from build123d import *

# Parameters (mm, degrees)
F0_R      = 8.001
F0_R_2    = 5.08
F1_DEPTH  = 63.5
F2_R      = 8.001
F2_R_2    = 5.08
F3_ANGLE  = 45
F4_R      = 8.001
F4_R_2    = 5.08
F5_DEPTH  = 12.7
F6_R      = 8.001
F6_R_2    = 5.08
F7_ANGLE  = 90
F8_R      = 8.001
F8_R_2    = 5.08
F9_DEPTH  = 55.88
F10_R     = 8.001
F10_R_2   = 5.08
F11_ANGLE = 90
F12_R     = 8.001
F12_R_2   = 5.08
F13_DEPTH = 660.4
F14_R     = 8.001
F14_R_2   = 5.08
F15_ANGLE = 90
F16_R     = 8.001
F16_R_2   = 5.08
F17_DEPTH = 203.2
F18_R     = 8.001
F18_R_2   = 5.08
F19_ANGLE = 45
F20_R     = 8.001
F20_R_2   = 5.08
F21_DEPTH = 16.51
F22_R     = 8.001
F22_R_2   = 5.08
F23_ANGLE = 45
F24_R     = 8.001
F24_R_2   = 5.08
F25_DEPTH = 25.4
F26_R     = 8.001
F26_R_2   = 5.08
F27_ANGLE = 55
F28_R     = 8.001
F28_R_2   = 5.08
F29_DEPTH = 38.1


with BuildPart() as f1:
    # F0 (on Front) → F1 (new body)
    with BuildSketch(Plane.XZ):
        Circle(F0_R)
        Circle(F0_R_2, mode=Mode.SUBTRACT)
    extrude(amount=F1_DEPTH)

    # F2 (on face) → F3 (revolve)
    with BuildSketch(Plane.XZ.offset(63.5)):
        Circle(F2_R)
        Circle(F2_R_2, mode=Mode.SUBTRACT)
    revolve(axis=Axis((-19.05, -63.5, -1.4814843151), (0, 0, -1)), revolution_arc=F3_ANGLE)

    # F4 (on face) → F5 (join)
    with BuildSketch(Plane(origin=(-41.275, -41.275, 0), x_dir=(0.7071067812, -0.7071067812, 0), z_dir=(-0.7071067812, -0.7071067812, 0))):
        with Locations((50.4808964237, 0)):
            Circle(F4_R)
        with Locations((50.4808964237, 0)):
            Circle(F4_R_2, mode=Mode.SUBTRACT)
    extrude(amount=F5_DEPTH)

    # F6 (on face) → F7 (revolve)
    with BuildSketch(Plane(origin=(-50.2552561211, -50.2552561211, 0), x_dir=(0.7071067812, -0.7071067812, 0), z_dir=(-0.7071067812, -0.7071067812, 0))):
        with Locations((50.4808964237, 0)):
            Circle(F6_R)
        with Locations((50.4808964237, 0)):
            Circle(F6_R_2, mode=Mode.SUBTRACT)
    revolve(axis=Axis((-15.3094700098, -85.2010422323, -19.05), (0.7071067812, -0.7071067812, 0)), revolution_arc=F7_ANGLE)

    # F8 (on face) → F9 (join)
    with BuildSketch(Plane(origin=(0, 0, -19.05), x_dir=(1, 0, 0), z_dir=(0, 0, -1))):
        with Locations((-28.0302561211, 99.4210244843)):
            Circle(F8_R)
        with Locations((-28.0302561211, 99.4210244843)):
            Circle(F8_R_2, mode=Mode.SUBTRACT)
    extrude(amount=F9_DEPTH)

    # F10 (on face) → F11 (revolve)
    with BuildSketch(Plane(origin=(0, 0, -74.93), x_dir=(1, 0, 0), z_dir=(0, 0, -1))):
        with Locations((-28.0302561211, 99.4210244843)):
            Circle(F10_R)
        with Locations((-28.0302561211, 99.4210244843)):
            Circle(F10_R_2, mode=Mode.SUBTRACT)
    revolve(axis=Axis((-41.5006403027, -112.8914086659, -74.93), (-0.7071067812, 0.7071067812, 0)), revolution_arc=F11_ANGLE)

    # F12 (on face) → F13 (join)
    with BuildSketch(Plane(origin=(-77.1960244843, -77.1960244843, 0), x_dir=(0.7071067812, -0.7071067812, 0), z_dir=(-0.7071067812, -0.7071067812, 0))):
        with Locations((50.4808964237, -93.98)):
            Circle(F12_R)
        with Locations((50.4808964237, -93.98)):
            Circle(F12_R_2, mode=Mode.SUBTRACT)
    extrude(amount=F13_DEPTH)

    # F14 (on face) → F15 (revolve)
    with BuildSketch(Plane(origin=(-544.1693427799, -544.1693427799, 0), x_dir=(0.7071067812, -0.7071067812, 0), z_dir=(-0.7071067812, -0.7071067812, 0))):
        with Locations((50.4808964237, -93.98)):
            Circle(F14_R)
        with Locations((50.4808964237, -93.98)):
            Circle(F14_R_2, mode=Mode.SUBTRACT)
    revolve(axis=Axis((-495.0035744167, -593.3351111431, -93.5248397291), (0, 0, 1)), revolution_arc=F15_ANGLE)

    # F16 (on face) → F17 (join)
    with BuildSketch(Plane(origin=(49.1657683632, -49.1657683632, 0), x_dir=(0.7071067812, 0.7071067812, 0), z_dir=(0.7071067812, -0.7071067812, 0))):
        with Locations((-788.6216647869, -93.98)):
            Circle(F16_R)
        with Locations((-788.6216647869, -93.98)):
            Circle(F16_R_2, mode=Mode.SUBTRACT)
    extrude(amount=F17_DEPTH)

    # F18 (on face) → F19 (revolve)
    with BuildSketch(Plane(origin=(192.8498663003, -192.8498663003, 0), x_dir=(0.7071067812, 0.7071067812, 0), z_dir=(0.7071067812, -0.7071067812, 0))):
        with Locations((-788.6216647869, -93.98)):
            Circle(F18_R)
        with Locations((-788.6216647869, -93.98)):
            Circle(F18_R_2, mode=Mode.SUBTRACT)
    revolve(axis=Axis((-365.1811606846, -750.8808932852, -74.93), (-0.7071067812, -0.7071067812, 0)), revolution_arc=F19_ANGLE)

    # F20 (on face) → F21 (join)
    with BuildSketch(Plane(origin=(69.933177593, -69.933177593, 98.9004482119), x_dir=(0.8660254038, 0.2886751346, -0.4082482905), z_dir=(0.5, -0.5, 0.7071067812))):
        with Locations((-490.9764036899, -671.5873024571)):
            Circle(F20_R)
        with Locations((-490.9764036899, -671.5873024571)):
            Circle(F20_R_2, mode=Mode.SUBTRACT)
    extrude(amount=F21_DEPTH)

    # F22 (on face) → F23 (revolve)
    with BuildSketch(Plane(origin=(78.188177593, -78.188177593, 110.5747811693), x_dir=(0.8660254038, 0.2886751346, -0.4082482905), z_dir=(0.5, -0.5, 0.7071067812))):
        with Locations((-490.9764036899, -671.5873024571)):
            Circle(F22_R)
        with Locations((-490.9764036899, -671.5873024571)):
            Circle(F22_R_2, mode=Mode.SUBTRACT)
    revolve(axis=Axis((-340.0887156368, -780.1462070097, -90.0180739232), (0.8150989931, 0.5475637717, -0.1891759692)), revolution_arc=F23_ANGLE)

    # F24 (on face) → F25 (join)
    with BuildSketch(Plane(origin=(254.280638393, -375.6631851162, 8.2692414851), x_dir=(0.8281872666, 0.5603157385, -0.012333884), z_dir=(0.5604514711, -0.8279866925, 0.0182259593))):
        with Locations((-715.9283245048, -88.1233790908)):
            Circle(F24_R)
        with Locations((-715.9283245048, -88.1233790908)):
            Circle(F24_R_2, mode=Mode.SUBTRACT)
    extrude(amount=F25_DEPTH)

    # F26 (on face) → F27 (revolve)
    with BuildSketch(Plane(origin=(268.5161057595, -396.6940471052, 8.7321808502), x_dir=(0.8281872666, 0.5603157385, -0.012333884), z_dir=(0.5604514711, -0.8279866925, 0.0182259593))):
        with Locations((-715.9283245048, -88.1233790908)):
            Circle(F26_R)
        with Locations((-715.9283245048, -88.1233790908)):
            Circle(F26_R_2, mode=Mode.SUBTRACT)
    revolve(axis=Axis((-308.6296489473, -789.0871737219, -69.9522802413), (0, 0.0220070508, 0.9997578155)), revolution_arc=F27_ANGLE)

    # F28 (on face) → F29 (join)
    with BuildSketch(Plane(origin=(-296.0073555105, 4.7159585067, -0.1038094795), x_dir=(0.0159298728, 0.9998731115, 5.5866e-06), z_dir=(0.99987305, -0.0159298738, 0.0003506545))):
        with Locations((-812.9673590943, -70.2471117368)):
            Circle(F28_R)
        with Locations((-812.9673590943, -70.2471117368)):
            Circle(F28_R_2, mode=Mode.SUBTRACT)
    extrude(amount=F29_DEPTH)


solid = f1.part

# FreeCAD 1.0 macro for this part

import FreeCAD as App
import Part
import Sketcher
Q = App.Units.Quantity

doc = App.newDocument("Part")
body = doc.addObject("PartDesign::Body", "Body")

sketch1 = body.newObject("Sketcher::SketchObject", "Sketch")
sketch1.AttachmentSupport = (doc.getObject("XZ_Plane"), [""])
sketch1.MapMode = "FlatFace"
sketch1.addGeometry([
    Part.Circle(App.Vector(0, 0, 0), App.Vector(0, 0, 1), 8),
    Part.Circle(App.Vector(0, 0, 0), App.Vector(0, 0, 1), 5),
], False)
sketch1.addConstraint([
    Sketcher.Constraint("Coincident", 0, 3, -1, 1),
    Sketcher.Constraint("Coincident", 1, 3, -1, 1),
    Sketcher.Constraint("Diameter", 1, Q("0.4 in")),
    Sketcher.Constraint("Diameter", 0, Q("0.63 in")),
])
pad1 = body.newObject("PartDesign::Pad", "Pad")
pad1.Profile = sketch1
pad1.Length = Q("2.5 in")

sketch2 = body.newObject("Sketcher::SketchObject", "Sketch001")
sketch2.AttachmentSupport = (doc.getObject("XZ_Plane"), [""])
sketch2.MapMode = "FlatFace"
sketch2.AttachmentOffset = App.Placement(App.Vector(0, 0, 2.5 * 25.4), App.Rotation())
sketch2.addGeometry([
    Part.Circle(App.Vector(0, 0, 0), App.Vector(0, 0, 1), 8),
    Part.Circle(App.Vector(0, 0, 0), App.Vector(0, 0, 1), 5),
], False)
sketch2.addGeometry(Part.LineSegment(App.Vector(-19, 0, 0), App.Vector(-19, -10, 0)), True)
sketch2.addConstraint([
    Sketcher.Constraint("Vertical", 2),
    Sketcher.Constraint("Coincident", 0, 3, -1, 1),
    Sketcher.Constraint("Coincident", 1, 3, -1, 1),
    Sketcher.Constraint("PointOnObject", 2, 1, -1),
    Sketcher.Constraint("Diameter", 1, Q("0.4 in")),
    Sketcher.Constraint("Diameter", 0, Q("0.63 in")),
    Sketcher.Constraint("DistanceX", 2, 1, -1, 1, Q("0.75 in")),
    Sketcher.Constraint("DistanceY", 2, 2, 2, 1, 10.0),
])
revolution = body.newObject("PartDesign::Revolution", "Revolution")
revolution.Profile = sketch2
revolution.ReferenceAxis = (sketch2, ["Axis0"])
revolution.Angle = 45

sketch3 = body.newObject("Sketcher::SketchObject", "Sketch002")
sketch3.Placement = App.Placement(App.Vector(-41.275, -41.275, 0), App.Rotation(App.Vector(0.707106781, -0.707106781, 0), App.Vector(0, 0, 0.999999999), App.Vector(-0.707106781, -0.707106781, 0), "ZXY"))
sketch3.addGeometry([
    Part.Circle(App.Vector(50, 0, 0), App.Vector(0, 0, 1), 8),
    Part.Circle(App.Vector(50, 0, 0), App.Vector(0, 0, 1), 5),
], False)
sketch3.addConstraint([
    Sketcher.Constraint("Coincident", 1, 3, 0, 3),
    Sketcher.Constraint("PointOnObject", 0, 3, -1),
    Sketcher.Constraint("Diameter", 1, Q("0.4 in")),
    Sketcher.Constraint("Diameter", 0, Q("0.63 in")),
    Sketcher.Constraint("DistanceX", -1, 1, 0, 3, 50.480896),
])
pad2 = body.newObject("PartDesign::Pad", "Pad001")
pad2.Profile = sketch3
pad2.Length = Q("0.5 in")

sketch4 = body.newObject("Sketcher::SketchObject", "Sketch003")
sketch4.Placement = App.Placement(App.Vector(-50.255256, -50.255256, 0), App.Rotation(App.Vector(0.707106781, -0.707106781, 0), App.Vector(0, 0, 0.999999999), App.Vector(-0.707106781, -0.707106781, 0), "ZXY"))
sketch4.addGeometry([
    Part.Circle(App.Vector(50, 0, 0), App.Vector(0, 0, 1), 8),
    Part.Circle(App.Vector(50, 0, 0), App.Vector(0, 0, 1), 5),
], False)
sketch4.addGeometry(Part.LineSegment(App.Vector(50, -19, 0), App.Vector(60, -19, 0)), True)
sketch4.addConstraint([
    Sketcher.Constraint("Horizontal", 2),
    Sketcher.Constraint("Coincident", 1, 3, 0, 3),
    Sketcher.Constraint("PointOnObject", 0, 3, -1),
    Sketcher.Constraint("Vertical", 1, 3, 2, 1),
    Sketcher.Constraint("Diameter", 1, Q("0.4 in")),
    Sketcher.Constraint("Diameter", 0, Q("0.63 in")),
    Sketcher.Constraint("DistanceY", 2, 1, -1, 1, Q("0.75 in")),
    Sketcher.Constraint("DistanceX", 2, 1, 2, 2, 10.0),
    Sketcher.Constraint("DistanceX", -1, 1, 0, 3, 50.480896),
])
revolution2 = body.newObject("PartDesign::Revolution", "Revolution001")
revolution2.Profile = sketch4
revolution2.ReferenceAxis = (sketch4, ["Axis0"])
revolution2.Angle = 90

sketch5 = body.newObject("Sketcher::SketchObject", "Sketch004")
sketch5.AttachmentSupport = (doc.getObject("XY_Plane"), [""])
sketch5.MapMode = "FlatFace"
sketch5.AttachmentOffset = App.Placement(App.Vector(0, 0, -0.75 * 25.4), App.Rotation())
sketch5.addGeometry([
    Part.Circle(App.Vector(-28, -99, 0), App.Vector(0, 0, 1), 8),
    Part.Circle(App.Vector(-28, -99, 0), App.Vector(0, 0, 1), 5),
], False)
sketch5.addConstraint([
    Sketcher.Constraint("Coincident", 1, 3, 0, 3),
    Sketcher.Constraint("Diameter", 1, Q("0.4 in")),
    Sketcher.Constraint("Diameter", 0, Q("0.63 in")),
    Sketcher.Constraint("DistanceX", 0, 3, -1, 1, 28.030256),
    Sketcher.Constraint("DistanceY", 0, 3, -1, 1, 99.421024),
])
pad3 = body.newObject("PartDesign::Pad", "Pad002")
pad3.Profile = sketch5
pad3.Length = Q("2.2 in")
pad3.Reversed = True

sketch6 = body.newObject("Sketcher::SketchObject", "Sketch005")
sketch6.AttachmentSupport = (doc.getObject("XY_Plane"), [""])
sketch6.MapMode = "FlatFace"
sketch6.AttachmentOffset = App.Placement(App.Vector(0, 0, -2.95 * 25.4), App.Rotation())
sketch6.addGeometry([
    Part.Circle(App.Vector(-28, -99, 0), App.Vector(0, 0, 1), 8),
    Part.Circle(App.Vector(-28, -99, 0), App.Vector(0, 0, 1), 5),
], False)
sketch6.addGeometry(Part.LineSegment(App.Vector(-42, -113, 0), App.Vector(-49, -106, 0)), True)
sketch6.addConstraint([
    Sketcher.Constraint("Coincident", 1, 3, 0, 3),
    Sketcher.Constraint("Diameter", 1, Q("0.4 in")),
    Sketcher.Constraint("Diameter", 0, Q("0.63 in")),
    Sketcher.Constraint("Angle", 2, Q("135 deg")),
    Sketcher.Constraint("Distance", 2, 10.0),
    Sketcher.Constraint("DistanceX", 2, 1, -1, 1, 41.50064),
    Sketcher.Constraint("DistanceY", 2, 1, -1, 1, 112.891409),
    Sketcher.Constraint("DistanceX", 2, 2, 0, 3, 20.541452),
    Sketcher.Constraint("DistanceY", 0, 3, -1, 1, 99.421024),
])
revolution3 = body.newObject("PartDesign::Revolution", "Revolution002")
revolution3.Profile = sketch6
revolution3.ReferenceAxis = (sketch6, ["Axis0"])
revolution3.Angle = 90

sketch7 = body.newObject("Sketcher::SketchObject", "Sketch006")
sketch7.Placement = App.Placement(App.Vector(-77.196024, -77.196024, 0), App.Rotation(App.Vector(0.707106781, -0.707106781, 0), App.Vector(0, 0, 0.999999999), App.Vector(-0.707106781, -0.707106781, 0), "ZXY"))
sketch7.addGeometry([
    Part.Circle(App.Vector(50, -94, 0), App.Vector(0, 0, 1), 8),
    Part.Circle(App.Vector(50, -94, 0), App.Vector(0, 0, 1), 5),
], False)
sketch7.addConstraint([
    Sketcher.Constraint("Coincident", 1, 3, 0, 3),
    Sketcher.Constraint("Diameter", 1, Q("0.4 in")),
    Sketcher.Constraint("Diameter", 0, Q("0.63 in")),
    Sketcher.Constraint("DistanceY", 0, 3, -1, 1, Q("3.7 in")),
    Sketcher.Constraint("DistanceX", -1, 1, 0, 3, 50.480896),
])
pad4 = body.newObject("PartDesign::Pad", "Pad003")
pad4.Profile = sketch7
pad4.Length = Q("26 in")

sketch8 = body.newObject("Sketcher::SketchObject", "Sketch007")
sketch8.Placement = App.Placement(App.Vector(-544.169343, -544.169343, 0), App.Rotation(App.Vector(0.707106781, -0.707106781, 0), App.Vector(0, 0, 0.999999999), App.Vector(-0.707106781, -0.707106781, 0), "ZXY"))
sketch8.addGeometry([
    Part.Circle(App.Vector(50, -94, 0), App.Vector(0, 0, 1), 8),
    Part.Circle(App.Vector(50, -94, 0), App.Vector(0, 0, 1), 5),
], False)
sketch8.addGeometry(Part.LineSegment(App.Vector(70, -94, 0), App.Vector(70, -84, 0)), True)
sketch8.addConstraint([
    Sketcher.Constraint("Vertical", 2),
    Sketcher.Constraint("Coincident", 1, 3, 0, 3),
    Sketcher.Constraint("Horizontal", 1, 3, 2, 1),
    Sketcher.Constraint("Diameter", 1, Q("0.4 in")),
    Sketcher.Constraint("Diameter", 0, Q("0.63 in")),
    Sketcher.Constraint("DistanceY", 0, 3, -1, 1, Q("3.7 in")),
    Sketcher.Constraint("DistanceX", 0, 3, 2, 1, Q("0.75 in")),
    Sketcher.Constraint("DistanceY", 2, 1, 2, 2, 10.0),
    Sketcher.Constraint("DistanceX", -1, 1, 0, 3, 50.480896),
])
revolution4 = body.newObject("PartDesign::Revolution", "Revolution003")
revolution4.Profile = sketch8
revolution4.ReferenceAxis = (sketch8, ["Axis0"])
revolution4.Angle = 90

sketch9 = body.newObject("Sketcher::SketchObject", "Sketch008")
sketch9.Placement = App.Placement(App.Vector(49.165768, -49.165768, 0), App.Rotation(App.Vector(0.707106781, 0.707106781, 0), App.Vector(0, 0, 0.999999999), App.Vector(0.707106781, -0.707106781, 0), "ZXY"))
sketch9.addGeometry([
    Part.Circle(App.Vector(-789, -94, 0), App.Vector(0, 0, 1), 8),
    Part.Circle(App.Vector(-789, -94, 0), App.Vector(0, 0, 1), 5),
], False)
sketch9.addConstraint([
    Sketcher.Constraint("Coincident", 1, 3, 0, 3),
    Sketcher.Constraint("Diameter", 1, Q("0.4 in")),
    Sketcher.Constraint("Diameter", 0, Q("0.63 in")),
    Sketcher.Constraint("DistanceY", 0, 3, -1, 1, Q("3.7 in")),
    Sketcher.Constraint("DistanceX", 0, 3, -1, 1, 788.621664),
])
pad5 = body.newObject("PartDesign::Pad", "Pad004")
pad5.Profile = sketch9
pad5.Length = Q("8 in")

sketch10 = body.newObject("Sketcher::SketchObject", "Sketch009")
sketch10.Placement = App.Placement(App.Vector(192.849866, -192.849866, 0), App.Rotation(App.Vector(0.707106781, 0.707106781, 0), App.Vector(0, 0, 0.999999999), App.Vector(0.707106781, -0.707106781, 0), "ZXY"))
sketch10.addGeometry([
    Part.Circle(App.Vector(-789, -94, 0), App.Vector(0, 0, 1), 8),
    Part.Circle(App.Vector(-789, -94, 0), App.Vector(0, 0, 1), 5),
], False)
sketch10.addGeometry(Part.LineSegment(App.Vector(-789, -75, 0), App.Vector(-799, -75, 0)), True)
sketch10.addConstraint([
    Sketcher.Constraint("Horizontal", 2),
    Sketcher.Constraint("Coincident", 1, 3, 0, 3),
    Sketcher.Constraint("Vertical", 1, 3, 2, 1),
    Sketcher.Constraint("Diameter", 1, Q("0.4 in")),
    Sketcher.Constraint("Diameter", 0, Q("0.63 in")),
    Sketcher.Constraint("DistanceY", 0, 3, -1, 1, Q("3.7 in")),
    Sketcher.Constraint("DistanceY", 2, 1, -1, 1, Q("2.95 in")),
    Sketcher.Constraint("DistanceX", 2, 2, 2, 1, 10.0),
    Sketcher.Constraint("DistanceX", 0, 3, -1, 1, 788.621664),
])
revolution5 = body.newObject("PartDesign::Revolution", "Revolution004")
revolution5.Profile = sketch10
revolution5.ReferenceAxis = (sketch10, ["Axis0"])
revolution5.Angle = 45

sketch11 = body.newObject("Sketcher::SketchObject", "Sketch010")
sketch11.Placement = App.Placement(App.Vector(69.933178, -69.933178, 98.900448), App.Rotation(App.Vector(0.866025404, 0.288675135, -0.40824829), App.Vector(0, 0.816496581, 0.57735027), App.Vector(0.5, -0.5, 0.707106781), "ZXY"))
sketch11.addGeometry([
    Part.Circle(App.Vector(-491, -672, 0), App.Vector(0, 0, 1), 8),
    Part.Circle(App.Vector(-491, -672, 0), App.Vector(0, 0, 1), 5),
], False)
sketch11.addConstraint([
    Sketcher.Constraint("Coincident", 1, 3, 0, 3),
    Sketcher.Constraint("Diameter", 1, Q("0.4 in")),
    Sketcher.Constraint("Diameter", 0, Q("0.63 in")),
    Sketcher.Constraint("DistanceX", 0, 3, -1, 1, 490.976404),
    Sketcher.Constraint("DistanceY", 0, 3, -1, 1, 671.587302),
])
pad6 = body.newObject("PartDesign::Pad", "Pad005")
pad6.Profile = sketch11
pad6.Length = Q("0.65 in")

sketch12 = body.newObject("Sketcher::SketchObject", "Sketch011")
sketch12.Placement = App.Placement(App.Vector(78.188178, -78.188178, 110.574781), App.Rotation(App.Vector(0.866025404, 0.288675135, -0.40824829), App.Vector(0, 0.816496581, 0.57735027), App.Vector(0.5, -0.5, 0.707106781), "ZXY"))
sketch12.addGeometry([
    Part.Circle(App.Vector(-491, -672, 0), App.Vector(0, 0, 1), 8),
    Part.Circle(App.Vector(-491, -672, 0), App.Vector(0, 0, 1), 5),
], False)
sketch12.addGeometry(Part.LineSegment(App.Vector(-485, -690, 0), App.Vector(-475, -686, 0)), True)
sketch12.addConstraint([
    Sketcher.Constraint("Coincident", 1, 3, 0, 3),
    Sketcher.Constraint("Diameter", 1, Q("0.4 in")),
    Sketcher.Constraint("Diameter", 0, Q("0.63 in")),
    Sketcher.Constraint("Distance", 2, 10.0),
    Sketcher.Constraint("DistanceX", 2, 1, -1, 1, 484.540111),
    Sketcher.Constraint("DistanceY", 2, 1, -1, 1, 689.517072),
    Sketcher.Constraint("DistanceX", 2, 2, -1, 1, 475.128158),
    Sketcher.Constraint("DistanceY", 2, 1, 0, 3, 17.929769),
    Sketcher.Constraint("DistanceX", 0, 3, -1, 1, 490.976404),
])
revolution6 = body.newObject("PartDesign::Revolution", "Revolution005")
revolution6.Profile = sketch12
revolution6.ReferenceAxis = (sketch12, ["Axis0"])
revolution6.Angle = 45

sketch13 = body.newObject("Sketcher::SketchObject", "Sketch012")
sketch13.Placement = App.Placement(App.Vector(254.280638, -375.663185, 8.269241), App.Rotation(App.Vector(0.828187267, 0.560315738, -0.012333884), App.Vector(0, 0.022007051, 0.999757815), App.Vector(0.560451471, -0.827986692, 0.018225959), "ZXY"))
sketch13.addGeometry([
    Part.Circle(App.Vector(-716, -88, 0), App.Vector(0, 0, 1), 8),
    Part.Circle(App.Vector(-716, -88, 0), App.Vector(0, 0, 1), 5),
], False)
sketch13.addConstraint([
    Sketcher.Constraint("Coincident", 1, 3, 0, 3),
    Sketcher.Constraint("Diameter", 1, Q("0.4 in")),
    Sketcher.Constraint("Diameter", 0, Q("0.63 in")),
    Sketcher.Constraint("DistanceY", 0, 3, -1, 1, 88.123379),
    Sketcher.Constraint("DistanceX", 0, 3, -1, 1, 715.928325),
])
pad7 = body.newObject("PartDesign::Pad", "Pad006")
pad7.Profile = sketch13
pad7.Length = Q("1 in")

sketch14 = body.newObject("Sketcher::SketchObject", "Sketch013")
sketch14.Placement = App.Placement(App.Vector(268.516106, -396.694047, 8.732181), App.Rotation(App.Vector(0.828187267, 0.560315738, -0.012333884), App.Vector(0, 0.022007051, 0.999757815), App.Vector(0.560451471, -0.827986692, 0.018225959), "ZXY"))
sketch14.addGeometry([
    Part.Circle(App.Vector(-716, -88, 0), App.Vector(0, 0, 1), 8),
    Part.Circle(App.Vector(-716, -88, 0), App.Vector(0, 0, 1), 5),
], False)
sketch14.addGeometry(Part.LineSegment(App.Vector(-697, -88, 0), App.Vector(-697, -78, 0)), True)
sketch14.addConstraint([
    Sketcher.Constraint("Vertical", 2),
    Sketcher.Constraint("Coincident", 1, 3, 0, 3),
    Sketcher.Constraint("Horizontal", 1, 3, 2, 1),
    Sketcher.Constraint("Diameter", 1, Q("0.4 in")),
    Sketcher.Constraint("Diameter", 0, Q("0.63 in")),
    Sketcher.Constraint("DistanceX", 0, 3, 2, 1, Q("0.75 in")),
    Sketcher.Constraint("DistanceY", 2, 1, 2, 2, 10.0),
    Sketcher.Constraint("DistanceY", 0, 3, -1, 1, 88.123379),
    Sketcher.Constraint("DistanceX", 0, 3, -1, 1, 715.928325),
])
revolution7 = body.newObject("PartDesign::Revolution", "Revolution006")
revolution7.Profile = sketch14
revolution7.ReferenceAxis = (sketch14, ["Axis0"])
revolution7.Angle = 55

sketch15 = body.newObject("Sketcher::SketchObject", "Sketch014")
sketch15.Placement = App.Placement(App.Vector(-296.007356, 4.715959, -0.103809), App.Rotation(App.Vector(0.015929873, 0.999873112, 0.000005587), App.Vector(-0.0003507, 0, 0.999999939), App.Vector(0.99987305, -0.015929874, 0.000350655), "ZXY"))
sketch15.addGeometry([
    Part.Circle(App.Vector(-813, -70, 0), App.Vector(0, 0, 1), 8),
    Part.Circle(App.Vector(-813, -70, 0), App.Vector(0, 0, 1), 5),
], False)
sketch15.addConstraint([
    Sketcher.Constraint("Coincident", 1, 3, 0, 3),
    Sketcher.Constraint("Diameter", 1, Q("0.4 in")),
    Sketcher.Constraint("Diameter", 0, Q("0.63 in")),
    Sketcher.Constraint("DistanceX", 0, 3, -1, 1, 812.96736),
    Sketcher.Constraint("DistanceY", 0, 3, -1, 1, 70.247112),
])
pad8 = body.newObject("PartDesign::Pad", "Pad007")
pad8.Profile = sketch15
pad8.Length = Q("1.5 in")

doc.recompute()
